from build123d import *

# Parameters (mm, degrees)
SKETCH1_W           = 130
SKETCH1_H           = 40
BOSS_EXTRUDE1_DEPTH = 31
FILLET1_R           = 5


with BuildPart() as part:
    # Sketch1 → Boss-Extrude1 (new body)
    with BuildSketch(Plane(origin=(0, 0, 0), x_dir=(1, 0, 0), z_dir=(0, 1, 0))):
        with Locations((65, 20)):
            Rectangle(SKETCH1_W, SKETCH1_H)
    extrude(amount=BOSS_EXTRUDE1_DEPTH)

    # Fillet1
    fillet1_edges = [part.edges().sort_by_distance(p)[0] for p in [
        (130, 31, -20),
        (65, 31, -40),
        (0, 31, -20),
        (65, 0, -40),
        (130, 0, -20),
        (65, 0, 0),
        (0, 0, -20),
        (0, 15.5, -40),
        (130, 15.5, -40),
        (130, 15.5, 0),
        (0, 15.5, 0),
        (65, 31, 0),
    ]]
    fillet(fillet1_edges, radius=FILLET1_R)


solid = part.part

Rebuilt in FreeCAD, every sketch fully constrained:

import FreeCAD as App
import Part
import Sketcher

doc = App.newDocument("Part")
body = doc.addObject("PartDesign::Body", "Body")

# Sketch on XZ plane
sketch1 = body.newObject("Sketcher::SketchObject", "Sketch")
sketch1.AttachmentSupport = (doc.getObject("XZ_Plane"), [""])
sketch1.MapMode = "FlatFace"
sketch1.addGeometry([
    Part.LineSegment(App.Vector(0, -40, 0), App.Vector(0, 0, 0)),
    Part.LineSegment(App.Vector(0, 0, 0), App.Vector(130, 0, 0)),
    Part.LineSegment(App.Vector(130, 0, 0), App.Vector(130, -40, 0)),
    Part.LineSegment(App.Vector(130, -40, 0), App.Vector(0, -40, 0)),
], False)
sketch1.addConstraint([
    Sketcher.Constraint("Coincident", 0, 2, 1, 1),
    Sketcher.Constraint("Coincident", 1, 2, 2, 1),
    Sketcher.Constraint("Coincident", 2, 2, 3, 1),
    Sketcher.Constraint("Coincident", 3, 2, 0, 1),
    Sketcher.Constraint("Vertical", 0),
    Sketcher.Constraint("Horizontal", 1),
    Sketcher.Constraint("Vertical", 2),
    Sketcher.Constraint("Horizontal", 3),
    Sketcher.Constraint("Coincident", 0, 2, -1, 1),
    Sketcher.Constraint("DistanceX", 1, 1, 1, 2, 130.0),
    Sketcher.Constraint("DistanceY", 0, 1, 0, 2, 40.0),
])
pad1 = body.newObject("PartDesign::Pad", "Pad")
pad1.Profile = sketch1
pad1.Length = 31
pad1.Reversed = True
doc.recompute()

fillet = body.newObject("PartDesign::Fillet", "Fillet")
fillet.Base = (pad1, ["Edge1"])
fillet.UseAllEdges = True
fillet.Radius = 5

doc.recompute()
